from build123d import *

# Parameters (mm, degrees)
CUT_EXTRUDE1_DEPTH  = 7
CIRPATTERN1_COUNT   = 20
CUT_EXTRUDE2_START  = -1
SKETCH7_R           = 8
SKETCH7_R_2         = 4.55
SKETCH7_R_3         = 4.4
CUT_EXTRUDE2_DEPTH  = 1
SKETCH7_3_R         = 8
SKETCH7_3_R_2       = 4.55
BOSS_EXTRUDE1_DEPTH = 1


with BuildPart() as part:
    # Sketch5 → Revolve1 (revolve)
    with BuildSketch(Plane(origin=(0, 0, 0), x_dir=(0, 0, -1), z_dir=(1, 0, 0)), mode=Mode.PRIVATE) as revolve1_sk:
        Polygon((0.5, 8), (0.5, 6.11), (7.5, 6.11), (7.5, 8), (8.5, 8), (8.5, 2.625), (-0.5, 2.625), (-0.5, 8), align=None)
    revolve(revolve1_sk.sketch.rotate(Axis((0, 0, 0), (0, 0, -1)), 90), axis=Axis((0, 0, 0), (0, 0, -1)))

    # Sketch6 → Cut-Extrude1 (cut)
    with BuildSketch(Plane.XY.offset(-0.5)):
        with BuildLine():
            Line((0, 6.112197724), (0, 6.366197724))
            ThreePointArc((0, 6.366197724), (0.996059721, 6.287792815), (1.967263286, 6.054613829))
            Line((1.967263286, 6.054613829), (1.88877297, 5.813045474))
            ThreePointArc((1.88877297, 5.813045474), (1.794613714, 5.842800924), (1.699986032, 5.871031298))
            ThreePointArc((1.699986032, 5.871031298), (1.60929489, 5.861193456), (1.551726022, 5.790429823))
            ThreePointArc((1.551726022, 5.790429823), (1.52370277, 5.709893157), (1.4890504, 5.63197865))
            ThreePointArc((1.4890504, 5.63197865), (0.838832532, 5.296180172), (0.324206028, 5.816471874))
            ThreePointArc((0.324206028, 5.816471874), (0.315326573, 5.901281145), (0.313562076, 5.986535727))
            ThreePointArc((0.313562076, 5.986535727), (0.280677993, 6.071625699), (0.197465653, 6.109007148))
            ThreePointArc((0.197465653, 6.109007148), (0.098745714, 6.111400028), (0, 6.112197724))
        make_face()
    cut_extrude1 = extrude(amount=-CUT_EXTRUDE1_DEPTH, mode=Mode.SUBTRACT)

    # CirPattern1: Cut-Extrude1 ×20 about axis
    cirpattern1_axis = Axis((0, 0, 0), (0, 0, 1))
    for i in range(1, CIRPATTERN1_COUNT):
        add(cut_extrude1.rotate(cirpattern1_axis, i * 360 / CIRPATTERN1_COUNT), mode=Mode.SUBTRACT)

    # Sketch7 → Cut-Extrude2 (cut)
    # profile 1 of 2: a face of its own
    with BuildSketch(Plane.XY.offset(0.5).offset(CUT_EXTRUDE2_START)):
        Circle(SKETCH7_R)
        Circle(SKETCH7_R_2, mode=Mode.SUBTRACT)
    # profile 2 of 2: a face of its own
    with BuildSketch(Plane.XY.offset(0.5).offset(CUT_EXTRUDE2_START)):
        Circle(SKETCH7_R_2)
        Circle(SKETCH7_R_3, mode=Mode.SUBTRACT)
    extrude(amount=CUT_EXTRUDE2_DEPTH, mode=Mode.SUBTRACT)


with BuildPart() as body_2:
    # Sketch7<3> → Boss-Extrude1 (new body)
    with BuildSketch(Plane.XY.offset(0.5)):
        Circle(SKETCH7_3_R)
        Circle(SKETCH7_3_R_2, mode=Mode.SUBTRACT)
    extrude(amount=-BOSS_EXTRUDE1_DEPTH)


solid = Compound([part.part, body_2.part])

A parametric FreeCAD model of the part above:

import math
import FreeCAD as App
import Part
import Sketcher

V = App.Vector
Q = App.Units.Quantity


def add_polygon(sketch, points):
    """Adds a closed chain of lines whose ends are joined by coincident constraints."""
    first, n = sketch.GeometryCount, len(points)
    for a, b in zip(points, points[1:] + points[:1]):
        sketch.addGeometry(Part.LineSegment(App.Vector(*a, 0), App.Vector(*b, 0)), False)
    for i in range(n):
        sketch.addConstraint(Sketcher.Constraint("Coincident", first + i, 2, first + (i + 1) % n, 1))

doc = App.newDocument("Part")
params = doc.addObject("Spreadsheet::Sheet", "Params")
for row, (alias, value) in enumerate([
    ("sketch1_height", "1 mm"),
    ("sketch1_height2", "9 mm"),
    ("sketch1_width", "1.89 mm"),
    ("revolution_angle", "360 deg"),
    ("sketch2_radius", "0.12 mm"),
    ("sketch2_radius2", "1.02 mm"),
    ("pocket1_length", "7 mm"),
    ("sketch3_diameter", "16 mm"),
    ("sketch3_diameter2", "8.8 mm"),
    ("pocket2_length", "1 mm"),
    ("sketch4_diameter", "16 mm"),
    ("sketch4_diameter2", "9.1 mm"),
    ("pad1_length", "1 mm"),
], start=1):
    params.set(f"A{row}", alias)
    params.set(f"B{row}", "=" + value)
    params.setAlias(f"B{row}", alias)

body = doc.addObject("PartDesign::Body", "Body")

# Sketch on YZ plane
sketch1 = body.newObject("Sketcher::SketchObject", "Sketch")
sketch1.AttachmentSupport = (doc.getObject("YZ_Plane"), [""])
sketch1.MapMode = "FlatFace"
add_polygon(sketch1, [(6.11, -0.5), (8, -0.5), (8, 0.5), (2.625, 0.5), (2.625, -8.5), (8, -8.5), (8, -7.5), (6.11, -7.5)])  # lines 0-7
sketch1.addConstraint(Sketcher.Constraint("Horizontal", 0))
sketch1.addConstraint(Sketcher.Constraint("Vertical", 1))
sketch1.addConstraint(Sketcher.Constraint("Horizontal", 2))
sketch1.addConstraint(Sketcher.Constraint("Vertical", 3))
sketch1.addConstraint(Sketcher.Constraint("Horizontal", 4))
sketch1.addConstraint(Sketcher.Constraint("Vertical", 5))
sketch1.addConstraint(Sketcher.Constraint("Horizontal", 6))
sketch1.addConstraint(Sketcher.Constraint("Vertical", 7))
sketch1.addConstraint(Sketcher.Constraint("Vertical", 1, 2, 4, 2))
sketch1.addConstraint(Sketcher.Constraint("Equal", 1, 5))
sketch1.addConstraint(Sketcher.Constraint("DistanceY", 1, 1, 1, 2, 1.0))
sketch1.addConstraint(Sketcher.Constraint("DistanceY", 3, 2, 3, 1, 9.0))
sketch1.addConstraint(Sketcher.Constraint("DistanceX", -1, 1, 0, 2, 8.0))
sketch1.addConstraint(Sketcher.Constraint("DistanceX", 0, 1, 0, 2, 1.89))
sketch1.addConstraint(Sketcher.Constraint("DistanceY", 0, 2, -1, 1, 0.5))
sketch1.addConstraint(Sketcher.Constraint("DistanceX", 2, 2, 2, 1, 5.375))
sketch1.setExpression("Constraints[18]", "Params.sketch1_height")
sketch1.setExpression("Constraints[19]", "Params.sketch1_height2")
sketch1.setExpression("Constraints[21]", "Params.sketch1_width")
revolution = body.newObject("PartDesign::Revolution", "Revolution")
revolution.Profile = sketch1
revolution.ReferenceAxis = (sketch1, ["V_Axis"])
revolution.setExpression("Angle", "Params.revolution_angle")

# Sketch on XY plane
sketch2 = body.newObject("Sketcher::SketchObject", "Sketch001")
sketch2.AttachmentSupport = (doc.getObject("XY_Plane"), [""])
sketch2.MapMode = "FlatFace"
sketch2.AttachmentOffset = App.Placement(V(0, 0, -0.5), App.Rotation())
sketch2.addGeometry(Part.LineSegment(V(0, 6.366198, 0), V(0, 6.112198, 0)), False)
sketch2.addGeometry(Part.ArcOfCircle(Part.Circle(V(0, 0, 0), V(0, 0, 1), 6.112197), math.radians(88.148634), math.radians(90)), False)
sketch2.addGeometry(Part.ArcOfCircle(Part.Circle(V(0.193589, 5.98907, 0), V(0, 0, 1), 0.12), math.radians(-1.210014), math.radians(88.148633)), False)
sketch2.addGeometry(Part.ArcOfCircle(Part.Circle(V(1.333335, 5.964996, 0), V(0, 0, 1), 1.02), math.radians(178.789985), math.radians(188.372726)), False)
sketch2.addGeometry(Part.ArcOfCircle(Part.Circle(V(0.935488, 5.906441, 0), V(0, 0, 1), 0.617868), math.radians(-171.627274), math.radians(-26.372726)), False)
sketch2.addGeometry(Part.ArcOfCircle(Part.Circle(V(0.575209, 6.085072, 0), V(0, 0, 1), 1.02), math.radians(-26.372726), math.radians(-16.789985)), False)
sketch2.addGeometry(Part.ArcOfCircle(Part.Circle(V(1.66661, 5.755766, 0), V(0, 0, 1), 0.12), math.radians(73.851365), math.radians(163.210016)), False)
sketch2.addGeometry(Part.ArcOfCircle(Part.Circle(V(0.000001, 0.000004, 0), V(0, 0, 1), 6.112193), math.radians(71.999999), math.radians(73.851367)), False)
sketch2.addGeometry(Part.LineSegment(V(1.888773, 5.813045, 0), V(1.967263, 6.054614, 0)), False)
sketch2.addGeometry(Part.ArcOfCircle(Part.Circle(V(0, 0, 0), V(0, 0, 1), 6.366198), math.radians(72), math.radians(90)), False)
sketch2.addConstraint(Sketcher.Constraint("Coincident", 0, 2, 1, 2))
sketch2.addConstraint(Sketcher.Constraint("Tangent", 1, 1, 2, 2))
sketch2.addConstraint(Sketcher.Constraint("Tangent", 2, 1, 3, 1))
sketch2.addConstraint(Sketcher.Constraint("Tangent", 3, 2, 4, 1))
sketch2.addConstraint(Sketcher.Constraint("Tangent", 4, 2, 5, 1))
sketch2.addConstraint(Sketcher.Constraint("Tangent", 5, 2, 6, 2))
sketch2.addConstraint(Sketcher.Constraint("Tangent", 6, 1, 7, 2))
sketch2.addConstraint(Sketcher.Constraint("Coincident", 7, 1, 8, 1))
sketch2.addConstraint(Sketcher.Constraint("Coincident", 8, 2, 9, 1))
sketch2.addConstraint(Sketcher.Constraint("Coincident", 9, 2, 0, 1))
sketch2.addConstraint(Sketcher.Constraint("Vertical", 0))
sketch2.addConstraint(Sketcher.Constraint("Coincident", 1, 3, -1, 1))
sketch2.addConstraint(Sketcher.Constraint("Coincident", 7, 3, -1, 1))
sketch2.addConstraint(Sketcher.Constraint("Coincident", 9, 3, -1, 1))
sketch2.addConstraint(Sketcher.Constraint("Equal", 3, 5))
sketch2.addConstraint(Sketcher.Constraint("Equal", 2, 6))
sketch2.addConstraint(Sketcher.Constraint("PointOnObject", 0, 2, -2))
sketch2.addConstraint(Sketcher.Constraint("Angle", 8, Q("72 deg")))
sketch2.addConstraint(Sketcher.Constraint("Radius", 2, 0.12))
sketch2.addConstraint(Sketcher.Constraint("Radius", 3, 1.02))
sketch2.addConstraint(Sketcher.Constraint("DistanceY", 0, 2, 0, 1, 0.254))
sketch2.addConstraint(Sketcher.Constraint("Distance", 8, 0.254))
sketch2.addConstraint(Sketcher.Constraint("Radius", 1, 6.112197))
sketch2.addConstraint(Sketcher.Constraint("Radius", 4, 0.617868))
sketch2.addConstraint(Sketcher.Constraint("DistanceY", 2, 3, 5, 3, 0.096002))
sketch2.addConstraint(Sketcher.Constraint("DistanceX", 2, 3, 4, 3, 0.7419))
sketch2.addConstraint(Sketcher.Constraint("DistanceX", 5, 3, 6, 3, 1.091402))
sketch2.addConstraint(Sketcher.Constraint("DistanceY", 3, 3, 0, 2, 0.147202))
sketch2.addConstraint(Sketcher.Constraint("DistanceY", 6, 3, 7, 1, 0.057279))
sketch2.setExpression("Constraints[18]", "Params.sketch2_radius")
sketch2.setExpression("Constraints[19]", "Params.sketch2_radius2")
pocket1 = body.newObject("PartDesign::Pocket", "Pocket")
pocket1.Profile = sketch2
pocket1.setExpression("Length", "Params.pocket1_length")
doc.recompute()

polarpattern = body.newObject("PartDesign::PolarPattern", "PolarPattern")
polarpattern.Originals = [pocket1]
polarpattern.Axis = (doc.getObject("Z_Axis"), [""])
polarpattern.Angle = 360
polarpattern.Occurrences = 20
body.Tip = polarpattern

# Sketch on XY plane
sketch3 = body.newObject("Sketcher::SketchObject", "Sketch002")
sketch3.AttachmentSupport = (doc.getObject("XY_Plane"), [""])
sketch3.MapMode = "FlatFace"
sketch3.AttachmentOffset = App.Placement(V(0, 0, -0.5), App.Rotation())
sketch3.addGeometry(Part.Circle(V(0, 0, 0), V(0, 0, 1), 8), False)
sketch3.addGeometry(Part.Circle(V(0, 0, 0), V(0, 0, 1), 4.4), False)
sketch3.addConstraint(Sketcher.Constraint("Coincident", 0, 3, -1, 1))
sketch3.addConstraint(Sketcher.Constraint("Coincident", 1, 3, -1, 1))
sketch3.addConstraint(Sketcher.Constraint("Diameter", 0, 16.0))
sketch3.addConstraint(Sketcher.Constraint("Diameter", 1, 8.8))
sketch3.setExpression("Constraints[2]", "Params.sketch3_diameter")
sketch3.setExpression("Constraints[3]", "Params.sketch3_diameter2")
pocket2 = body.newObject("PartDesign::Pocket", "Pocket001")
pocket2.Profile = sketch3
pocket2.setExpression("Length", "Params.pocket2_length")
pocket2.Reversed = True
body2 = doc.addObject("PartDesign::Body", "Body001")

# Sketch on XY plane
sketch4 = body2.newObject("Sketcher::SketchObject", "Sketch003")
sketch4.AttachmentSupport = (doc.getObject("XY_Plane001"), [""])
sketch4.MapMode = "FlatFace"
sketch4.AttachmentOffset = App.Placement(V(0, 0, 0.5), App.Rotation())
sketch4.addGeometry(Part.Circle(V(0, 0, 0), V(0, 0, 1), 8), False)
sketch4.addGeometry(Part.Circle(V(0, 0, 0), V(0, 0, 1), 4.55), False)
sketch4.addConstraint(Sketcher.Constraint("Coincident", 0, 3, -1, 1))
sketch4.addConstraint(Sketcher.Constraint("Coincident", 1, 3, -1, 1))
sketch4.addConstraint(Sketcher.Constraint("Diameter", 0, 16.0))
sketch4.addConstraint(Sketcher.Constraint("Diameter", 1, 9.1))
sketch4.setExpression("Constraints[2]", "Params.sketch4_diameter")
sketch4.setExpression("Constraints[3]", "Params.sketch4_diameter2")
pad1 = body2.newObject("PartDesign::Pad", "Pad")
pad1.Profile = sketch4
pad1.setExpression("Length", "Params.pad1_length")
pad1.Reversed = True

doc.recompute()
